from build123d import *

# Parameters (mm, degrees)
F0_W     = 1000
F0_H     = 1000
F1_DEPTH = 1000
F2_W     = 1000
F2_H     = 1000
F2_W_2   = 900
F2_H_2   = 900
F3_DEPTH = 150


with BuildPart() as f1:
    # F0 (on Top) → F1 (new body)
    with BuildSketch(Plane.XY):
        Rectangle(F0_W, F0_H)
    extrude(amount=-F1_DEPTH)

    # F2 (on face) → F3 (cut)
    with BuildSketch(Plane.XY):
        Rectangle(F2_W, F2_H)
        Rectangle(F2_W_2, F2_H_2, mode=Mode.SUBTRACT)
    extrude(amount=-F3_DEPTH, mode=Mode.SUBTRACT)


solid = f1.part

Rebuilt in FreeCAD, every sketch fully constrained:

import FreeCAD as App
import Part
import Sketcher

V = App.Vector
Q = App.Units.Quantity


def add_polygon(sketch, points):
    """Adds a closed chain of lines whose ends are joined by coincident constraints."""
    first, n = sketch.GeometryCount, len(points)
    for a, b in zip(points, points[1:] + points[:1]):
        sketch.addGeometry(Part.LineSegment(App.Vector(*a, 0), App.Vector(*b, 0)), False)
    for i in range(n):
        sketch.addConstraint(Sketcher.Constraint("Coincident", first + i, 2, first + (i + 1) % n, 1))

doc = App.newDocument("Part")
body = doc.addObject("PartDesign::Body", "Body")

# Sketch on XY plane
sketch1 = body.newObject("Sketcher::SketchObject", "Sketch")
sketch1.AttachmentSupport = (doc.getObject("XY_Plane"), [""])
sketch1.MapMode = "FlatFace"
add_polygon(sketch1, [(-500, 500), (-500, -500), (500, -500), (500, 500)])  # lines 0-3
sketch1.addConstraint(Sketcher.Constraint("Vertical", 0))
sketch1.addConstraint(Sketcher.Constraint("Horizontal", 1))
sketch1.addConstraint(Sketcher.Constraint("Vertical", 2))
sketch1.addConstraint(Sketcher.Constraint("Horizontal", 3))
sketch1.addConstraint(Sketcher.Constraint("Symmetric", 0, 2, 2, 2, -1, 1))
sketch1.addConstraint(Sketcher.Constraint("Equal", 3, 0))
sketch1.addConstraint(Sketcher.Constraint("DistanceX", 1, 1, 1, 2, Q("1000 mm")))
pad1 = body.newObject("PartDesign::Pad", "Pad")
pad1.Profile = sketch1
pad1.Length = 1000
pad1.Reversed = True

# Sketch on XY plane
sketch2 = body.newObject("Sketcher::SketchObject", "Sketch001")
sketch2.AttachmentSupport = (doc.getObject("XY_Plane"), [""])
sketch2.MapMode = "FlatFace"
add_polygon(sketch2, [(-500, 500), (-500, -500), (500, -500), (500, 500)])  # lines 0-3
add_polygon(sketch2, [(450, -450), (-450, -450), (-450, 450), (450, 450)])  # lines 4-7
sketch2.addConstraint(Sketcher.Constraint("Vertical", 0))
sketch2.addConstraint(Sketcher.Constraint("Horizontal", 1))
sketch2.addConstraint(Sketcher.Constraint("Vertical", 2))
sketch2.addConstraint(Sketcher.Constraint("Horizontal", 3))
sketch2.addConstraint(Sketcher.Constraint("Horizontal", 4))
sketch2.addConstraint(Sketcher.Constraint("Vertical", 5))
sketch2.addConstraint(Sketcher.Constraint("Horizontal", 6))
sketch2.addConstraint(Sketcher.Constraint("Vertical", 7))
sketch2.addConstraint(Sketcher.Constraint("Symmetric", 0, 2, 2, 2, -1, 1))
sketch2.addConstraint(Sketcher.Constraint("Symmetric", 4, 2, 6, 2, -1, 1))
sketch2.addConstraint(Sketcher.Constraint("Equal", 3, 0))
sketch2.addConstraint(Sketcher.Constraint("Equal", 6, 5))
sketch2.addConstraint(Sketcher.Constraint("DistanceX", 1, 1, 1, 2, Q("1000 mm")))
sketch2.addConstraint(Sketcher.Constraint("DistanceX", 4, 2, 4, 1, Q("900 mm")))
pocket1 = body.newObject("PartDesign::Pocket", "Pocket")
pocket1.Profile = sketch2
pocket1.Length = 150

doc.recompute()
